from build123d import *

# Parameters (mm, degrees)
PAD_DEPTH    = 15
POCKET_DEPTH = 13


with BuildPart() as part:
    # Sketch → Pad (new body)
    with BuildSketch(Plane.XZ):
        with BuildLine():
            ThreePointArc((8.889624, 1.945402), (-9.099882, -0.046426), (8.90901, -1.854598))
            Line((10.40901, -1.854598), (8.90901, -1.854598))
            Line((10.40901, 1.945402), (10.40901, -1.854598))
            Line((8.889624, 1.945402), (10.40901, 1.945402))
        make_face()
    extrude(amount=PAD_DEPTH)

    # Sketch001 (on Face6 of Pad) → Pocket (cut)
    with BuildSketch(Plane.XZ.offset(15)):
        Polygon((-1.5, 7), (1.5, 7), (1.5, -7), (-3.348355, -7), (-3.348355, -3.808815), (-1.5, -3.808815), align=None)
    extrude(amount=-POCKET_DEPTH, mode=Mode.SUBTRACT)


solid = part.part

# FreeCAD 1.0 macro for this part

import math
import FreeCAD as App
import Part
import Sketcher
Q = App.Units.Quantity


def add_polygon(sketch, points):
    """Adds a closed chain of lines whose ends are joined by coincident constraints."""
    first, n = sketch.GeometryCount, len(points)
    for a, b in zip(points, points[1:] + points[:1]):
        sketch.addGeometry(Part.LineSegment(App.Vector(*a, 0), App.Vector(*b, 0)), False)
    for i in range(n):
        sketch.addConstraint(Sketcher.Constraint("Coincident", first + i, 2, first + (i + 1) % n, 1))

doc = App.newDocument("Part")
body = doc.addObject("PartDesign::Body", "Body")

sketch1 = doc.addObject("Sketcher::SketchObject", "Sketch")
body.addObject(sketch1)
sketch1.AttachmentSupport = (doc.XZ_Plane, [""])
sketch1.MapMode = "FlatFace"
sketch1.addGeometry(Part.ArcOfCircle(Part.Circle(App.Vector(0, 0, 0), App.Vector(0, 0, 1), 9.1), math.radians(12), math.radians(348)), False)
sketch1.addGeometry(Part.LineSegment(App.Vector(8.9, -1.9, 0), App.Vector(10.4, -1.9, 0)), False)
sketch1.addGeometry(Part.LineSegment(App.Vector(10.4, -1.9, 0), App.Vector(10.4, 1.9, 0)), False)
sketch1.addGeometry(Part.LineSegment(App.Vector(10.4, 1.9, 0), App.Vector(8.9, 1.9, 0)), False)
sketch1.addConstraint(Sketcher.Constraint("Coincident", 0, 2, 1, 1))
sketch1.addConstraint(Sketcher.Constraint("Coincident", 1, 2, 2, 1))
sketch1.addConstraint(Sketcher.Constraint("Coincident", 2, 2, 3, 1))
sketch1.addConstraint(Sketcher.Constraint("Coincident", 3, 2, 0, 1))
sketch1.addConstraint(Sketcher.Constraint("Horizontal", 1))
sketch1.addConstraint(Sketcher.Constraint("Vertical", 2))
sketch1.addConstraint(Sketcher.Constraint("Horizontal", 3))
sketch1.addConstraint(Sketcher.Constraint("Coincident", 0, 3, -1, 1))
sketch1.addConstraint(Sketcher.Constraint("Radius", 0, Q("9.1 mm")))
sketch1.addConstraint(Sketcher.Constraint("DistanceX", 1, 1, 1, 2, Q("1.5 mm")))
sketch1.addConstraint(Sketcher.Constraint("DistanceY", 2, 1, 2, 2, Q("3.8 mm")))
sketch1.addConstraint(Sketcher.Constraint("DistanceY", 0, 2, -1, 1, Q("1.854598 mm")))
pad1 = doc.addObject("PartDesign::Pad", "Pad")
body.addObject(pad1)
pad1.Profile = sketch1
pad1.Length = 15

sketch2 = doc.addObject("Sketcher::SketchObject", "Sketch001")
body.addObject(sketch2)
sketch2.AttachmentSupport = (doc.XZ_Plane, [""])
sketch2.MapMode = "FlatFace"
sketch2.AttachmentOffset = App.Placement(App.Vector(0, 0, 15), App.Rotation())
add_polygon(sketch2, [(1.5, 7), (-1.5, 7), (-1.5, -3.8), (-3.3, -3.8), (-3.3, -7), (1.5, -7)])
sketch2.addConstraint(Sketcher.Constraint("Horizontal", 0))
sketch2.addConstraint(Sketcher.Constraint("Vertical", 1))
sketch2.addConstraint(Sketcher.Constraint("Horizontal", 2))
sketch2.addConstraint(Sketcher.Constraint("Vertical", 3))
sketch2.addConstraint(Sketcher.Constraint("Horizontal", 4))
sketch2.addConstraint(Sketcher.Constraint("Vertical", 5))
sketch2.addConstraint(Sketcher.Constraint("Symmetric", 0, 2, 4, 2, -1, 1))
sketch2.addConstraint(Sketcher.Constraint("DistanceX", 0, 2, 0, 1, Q("3 mm")))
sketch2.addConstraint(Sketcher.Constraint("DistanceY", 5, 1, 5, 2, Q("14 mm")))
sketch2.addConstraint(Sketcher.Constraint("DistanceX", 2, 2, 2, 1, Q("1.848355 mm")))
sketch2.addConstraint(Sketcher.Constraint("DistanceY", 1, 2, 1, 1, Q("10.808815 mm")))
pocket1 = doc.addObject("PartDesign::Pocket", "Pocket")
body.addObject(pocket1)
pocket1.Profile = sketch2
pocket1.Length = 13

doc.recompute()
